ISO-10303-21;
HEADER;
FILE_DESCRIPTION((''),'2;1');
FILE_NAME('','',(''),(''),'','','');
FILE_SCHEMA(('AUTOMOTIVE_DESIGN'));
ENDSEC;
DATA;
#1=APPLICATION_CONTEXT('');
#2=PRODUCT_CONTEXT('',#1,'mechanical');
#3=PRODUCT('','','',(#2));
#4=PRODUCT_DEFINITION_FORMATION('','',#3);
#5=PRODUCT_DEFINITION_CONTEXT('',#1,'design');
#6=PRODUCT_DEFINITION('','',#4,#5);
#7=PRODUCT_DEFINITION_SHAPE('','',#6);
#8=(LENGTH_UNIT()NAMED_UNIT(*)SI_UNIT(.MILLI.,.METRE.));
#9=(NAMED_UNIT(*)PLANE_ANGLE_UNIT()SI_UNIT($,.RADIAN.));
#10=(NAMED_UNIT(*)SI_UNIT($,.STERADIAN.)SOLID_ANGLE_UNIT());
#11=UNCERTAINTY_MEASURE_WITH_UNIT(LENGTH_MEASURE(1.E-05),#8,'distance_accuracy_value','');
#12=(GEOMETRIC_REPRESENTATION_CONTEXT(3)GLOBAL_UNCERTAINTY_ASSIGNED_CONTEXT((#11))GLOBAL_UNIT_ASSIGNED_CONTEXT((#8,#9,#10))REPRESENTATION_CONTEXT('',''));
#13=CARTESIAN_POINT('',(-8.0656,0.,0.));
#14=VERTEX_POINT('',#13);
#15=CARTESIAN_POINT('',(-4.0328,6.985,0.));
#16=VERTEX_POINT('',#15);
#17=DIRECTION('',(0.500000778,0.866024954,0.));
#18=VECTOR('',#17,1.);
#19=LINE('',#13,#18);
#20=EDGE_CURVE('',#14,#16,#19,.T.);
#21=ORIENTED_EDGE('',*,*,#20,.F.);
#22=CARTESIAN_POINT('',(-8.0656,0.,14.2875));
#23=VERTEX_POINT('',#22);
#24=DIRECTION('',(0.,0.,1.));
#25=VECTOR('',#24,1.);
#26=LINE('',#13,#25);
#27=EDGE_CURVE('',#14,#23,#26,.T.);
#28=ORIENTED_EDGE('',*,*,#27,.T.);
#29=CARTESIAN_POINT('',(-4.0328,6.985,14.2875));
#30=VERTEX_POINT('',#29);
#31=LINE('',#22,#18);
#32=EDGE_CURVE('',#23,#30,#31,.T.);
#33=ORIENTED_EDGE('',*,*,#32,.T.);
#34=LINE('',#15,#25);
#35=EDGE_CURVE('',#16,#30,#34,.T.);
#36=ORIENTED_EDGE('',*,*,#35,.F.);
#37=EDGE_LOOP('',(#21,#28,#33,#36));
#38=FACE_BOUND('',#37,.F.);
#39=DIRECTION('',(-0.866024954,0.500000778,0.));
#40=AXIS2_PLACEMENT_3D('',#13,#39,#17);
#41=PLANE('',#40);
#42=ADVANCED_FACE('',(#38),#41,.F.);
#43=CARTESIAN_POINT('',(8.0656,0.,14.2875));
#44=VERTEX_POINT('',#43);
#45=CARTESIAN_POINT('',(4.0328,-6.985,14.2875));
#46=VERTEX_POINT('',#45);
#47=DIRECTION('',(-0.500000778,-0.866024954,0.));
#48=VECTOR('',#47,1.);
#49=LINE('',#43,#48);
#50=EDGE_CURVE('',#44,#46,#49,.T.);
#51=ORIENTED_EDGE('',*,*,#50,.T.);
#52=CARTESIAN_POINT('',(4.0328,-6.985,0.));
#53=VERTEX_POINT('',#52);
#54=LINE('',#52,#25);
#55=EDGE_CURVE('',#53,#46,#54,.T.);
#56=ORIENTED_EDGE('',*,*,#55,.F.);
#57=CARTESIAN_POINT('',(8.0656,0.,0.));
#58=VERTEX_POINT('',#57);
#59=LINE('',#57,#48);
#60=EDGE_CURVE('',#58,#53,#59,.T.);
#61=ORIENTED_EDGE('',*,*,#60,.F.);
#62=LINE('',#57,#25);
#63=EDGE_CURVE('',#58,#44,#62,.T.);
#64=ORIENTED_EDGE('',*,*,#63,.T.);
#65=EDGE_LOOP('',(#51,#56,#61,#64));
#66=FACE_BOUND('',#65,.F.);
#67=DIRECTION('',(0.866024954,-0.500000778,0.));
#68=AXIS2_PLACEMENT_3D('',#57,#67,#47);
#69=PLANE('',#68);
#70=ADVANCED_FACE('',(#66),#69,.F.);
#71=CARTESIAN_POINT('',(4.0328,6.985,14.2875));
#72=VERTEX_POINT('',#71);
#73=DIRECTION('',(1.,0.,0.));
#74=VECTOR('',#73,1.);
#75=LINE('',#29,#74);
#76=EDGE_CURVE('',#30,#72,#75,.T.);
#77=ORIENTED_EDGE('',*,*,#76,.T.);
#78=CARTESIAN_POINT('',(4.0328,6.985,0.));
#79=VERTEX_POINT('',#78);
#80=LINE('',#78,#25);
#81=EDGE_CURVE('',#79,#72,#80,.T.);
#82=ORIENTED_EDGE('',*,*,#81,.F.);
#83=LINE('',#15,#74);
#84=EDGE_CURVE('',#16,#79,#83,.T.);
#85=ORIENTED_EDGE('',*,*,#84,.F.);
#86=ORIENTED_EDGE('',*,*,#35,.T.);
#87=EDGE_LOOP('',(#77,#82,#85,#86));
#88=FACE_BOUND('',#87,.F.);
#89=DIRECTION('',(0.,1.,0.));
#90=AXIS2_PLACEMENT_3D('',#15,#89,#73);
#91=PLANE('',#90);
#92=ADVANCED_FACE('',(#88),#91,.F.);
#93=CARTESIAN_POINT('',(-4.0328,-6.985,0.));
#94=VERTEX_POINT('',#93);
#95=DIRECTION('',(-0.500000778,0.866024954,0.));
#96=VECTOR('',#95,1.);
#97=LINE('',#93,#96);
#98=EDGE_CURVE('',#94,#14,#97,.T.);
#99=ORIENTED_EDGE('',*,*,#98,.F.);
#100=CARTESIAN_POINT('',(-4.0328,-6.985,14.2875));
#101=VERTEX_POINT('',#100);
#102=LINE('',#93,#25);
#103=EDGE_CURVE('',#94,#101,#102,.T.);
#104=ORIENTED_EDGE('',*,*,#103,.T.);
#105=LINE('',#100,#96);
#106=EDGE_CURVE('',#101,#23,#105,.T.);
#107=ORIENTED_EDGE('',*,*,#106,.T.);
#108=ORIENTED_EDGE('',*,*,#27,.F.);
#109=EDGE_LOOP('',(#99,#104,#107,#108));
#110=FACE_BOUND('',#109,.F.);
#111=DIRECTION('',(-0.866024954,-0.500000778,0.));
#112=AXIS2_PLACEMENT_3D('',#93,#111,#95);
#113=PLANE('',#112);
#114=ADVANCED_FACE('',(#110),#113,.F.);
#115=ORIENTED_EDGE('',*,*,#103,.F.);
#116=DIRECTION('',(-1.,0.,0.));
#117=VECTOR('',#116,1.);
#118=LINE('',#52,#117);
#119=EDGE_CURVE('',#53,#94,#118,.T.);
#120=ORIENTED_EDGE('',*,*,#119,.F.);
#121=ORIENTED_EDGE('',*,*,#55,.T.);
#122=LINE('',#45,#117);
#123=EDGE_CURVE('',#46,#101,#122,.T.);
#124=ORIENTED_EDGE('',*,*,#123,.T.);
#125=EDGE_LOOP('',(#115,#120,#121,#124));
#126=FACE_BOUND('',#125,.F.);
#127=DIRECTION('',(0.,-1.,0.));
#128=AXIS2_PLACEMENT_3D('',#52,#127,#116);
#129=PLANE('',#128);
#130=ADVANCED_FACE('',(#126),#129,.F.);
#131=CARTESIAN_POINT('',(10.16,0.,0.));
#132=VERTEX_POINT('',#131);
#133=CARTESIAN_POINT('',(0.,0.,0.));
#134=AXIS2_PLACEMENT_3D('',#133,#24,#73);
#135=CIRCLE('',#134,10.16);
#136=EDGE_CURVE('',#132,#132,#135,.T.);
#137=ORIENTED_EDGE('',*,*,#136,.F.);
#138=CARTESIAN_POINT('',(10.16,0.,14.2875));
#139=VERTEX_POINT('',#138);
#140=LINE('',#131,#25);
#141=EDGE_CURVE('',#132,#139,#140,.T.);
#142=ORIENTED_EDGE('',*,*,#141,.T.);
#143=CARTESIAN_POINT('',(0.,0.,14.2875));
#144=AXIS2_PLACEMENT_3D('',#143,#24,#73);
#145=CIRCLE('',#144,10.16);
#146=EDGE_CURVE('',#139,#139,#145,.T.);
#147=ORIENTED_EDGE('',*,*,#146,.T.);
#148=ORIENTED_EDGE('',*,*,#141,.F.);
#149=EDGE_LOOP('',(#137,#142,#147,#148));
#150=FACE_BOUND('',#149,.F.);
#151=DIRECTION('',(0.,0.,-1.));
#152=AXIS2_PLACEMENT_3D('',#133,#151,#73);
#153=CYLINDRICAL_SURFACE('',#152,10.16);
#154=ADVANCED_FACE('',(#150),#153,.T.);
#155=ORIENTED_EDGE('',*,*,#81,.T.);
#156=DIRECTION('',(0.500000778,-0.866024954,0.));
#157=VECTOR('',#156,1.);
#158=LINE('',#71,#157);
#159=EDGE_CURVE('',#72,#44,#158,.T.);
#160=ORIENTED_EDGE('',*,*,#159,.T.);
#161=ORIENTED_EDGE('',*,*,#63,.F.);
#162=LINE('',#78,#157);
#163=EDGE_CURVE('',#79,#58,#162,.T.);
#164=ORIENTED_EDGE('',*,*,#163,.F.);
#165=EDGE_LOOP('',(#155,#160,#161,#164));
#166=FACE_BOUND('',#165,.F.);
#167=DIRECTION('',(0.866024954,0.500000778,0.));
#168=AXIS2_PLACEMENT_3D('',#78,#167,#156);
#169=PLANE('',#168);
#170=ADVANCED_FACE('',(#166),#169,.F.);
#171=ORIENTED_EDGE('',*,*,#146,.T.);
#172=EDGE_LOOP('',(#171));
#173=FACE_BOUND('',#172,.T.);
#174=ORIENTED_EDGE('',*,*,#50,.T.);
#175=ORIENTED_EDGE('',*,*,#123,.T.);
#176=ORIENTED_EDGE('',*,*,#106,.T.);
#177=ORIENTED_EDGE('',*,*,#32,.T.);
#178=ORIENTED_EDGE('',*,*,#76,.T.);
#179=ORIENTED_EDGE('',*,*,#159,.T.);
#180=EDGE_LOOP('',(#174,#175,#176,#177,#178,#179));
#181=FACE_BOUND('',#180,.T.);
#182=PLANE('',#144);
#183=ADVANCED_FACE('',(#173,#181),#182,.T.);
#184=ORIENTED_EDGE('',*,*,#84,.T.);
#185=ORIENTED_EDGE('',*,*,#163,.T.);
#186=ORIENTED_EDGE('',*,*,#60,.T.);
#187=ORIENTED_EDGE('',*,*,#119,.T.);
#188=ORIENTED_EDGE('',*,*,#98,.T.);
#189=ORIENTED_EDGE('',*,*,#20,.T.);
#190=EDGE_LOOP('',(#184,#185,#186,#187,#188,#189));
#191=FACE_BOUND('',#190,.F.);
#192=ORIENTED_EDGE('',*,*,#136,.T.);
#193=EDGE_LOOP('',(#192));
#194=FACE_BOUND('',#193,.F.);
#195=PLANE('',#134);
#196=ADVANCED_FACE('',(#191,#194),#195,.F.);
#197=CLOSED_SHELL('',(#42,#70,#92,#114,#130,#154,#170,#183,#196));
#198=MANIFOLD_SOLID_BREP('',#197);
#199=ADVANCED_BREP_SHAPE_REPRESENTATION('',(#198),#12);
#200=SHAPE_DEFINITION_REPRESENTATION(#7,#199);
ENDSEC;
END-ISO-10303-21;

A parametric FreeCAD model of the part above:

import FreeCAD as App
import Part
import Sketcher
from FreeCAD import Vector
Q = App.Units.Quantity


def add_polygon(sketch, points):
    """Adds a closed chain of lines whose ends are joined by coincident constraints."""
    first, n = sketch.GeometryCount, len(points)
    for a, b in zip(points, points[1:] + points[:1]):
        sketch.addGeometry(Part.LineSegment(App.Vector(*a, 0), App.Vector(*b, 0)), False)
    for i in range(n):
        sketch.addConstraint(Sketcher.Constraint("Coincident", first + i, 2, first + (i + 1) % n, 1))

doc = App.newDocument("Part")
body = doc.addObject("PartDesign::Body", "Body")

# Sketch on XY plane
sketch1 = body.newObject("Sketcher::SketchObject", "Sketch")
sketch1.AttachmentSupport = (doc.getObject("XY_Plane"), [""])
sketch1.MapMode = "FlatFace"
sketch1.addGeometry(Part.Circle(Vector(0, 0, 0), Vector(0, 0, 1), 10), False)  # 0
add_polygon(sketch1, [(8, 0), (4, -7), (-4, -7), (-8, 0), (-4, 7), (4, 7)])  # lines 1-6
sketch1.addConstraint([
    Sketcher.Constraint("Horizontal", 2),
    Sketcher.Constraint("Horizontal", 5),
    Sketcher.Constraint("Coincident", 0, 3, -1, 1),
    Sketcher.Constraint("Symmetric", 1, 2, 4, 2, -1, 1),
    Sketcher.Constraint("Symmetric", 3, 2, 6, 2, -1, 1),
    Sketcher.Constraint("PointOnObject", 3, 2, -1),
    Sketcher.Constraint("Parallel", 3, 6),
    Sketcher.Constraint("Vertical", 2, 2, 4, 2),
    Sketcher.Constraint("Diameter", 0, Q("0.8 in")),
    Sketcher.Constraint("DistanceY", 2, 2, 4, 2, Q("0.55 in")),
    Sketcher.Constraint("Angle", 1, Q("-120 deg")),
    Sketcher.Constraint("DistanceX", 2, 2, 2, 1, 8.0656),
])
pad1 = body.newObject("PartDesign::Pad", "Pad")
pad1.Profile = sketch1
pad1.Length = Q("0.5625 in")

doc.recompute()
